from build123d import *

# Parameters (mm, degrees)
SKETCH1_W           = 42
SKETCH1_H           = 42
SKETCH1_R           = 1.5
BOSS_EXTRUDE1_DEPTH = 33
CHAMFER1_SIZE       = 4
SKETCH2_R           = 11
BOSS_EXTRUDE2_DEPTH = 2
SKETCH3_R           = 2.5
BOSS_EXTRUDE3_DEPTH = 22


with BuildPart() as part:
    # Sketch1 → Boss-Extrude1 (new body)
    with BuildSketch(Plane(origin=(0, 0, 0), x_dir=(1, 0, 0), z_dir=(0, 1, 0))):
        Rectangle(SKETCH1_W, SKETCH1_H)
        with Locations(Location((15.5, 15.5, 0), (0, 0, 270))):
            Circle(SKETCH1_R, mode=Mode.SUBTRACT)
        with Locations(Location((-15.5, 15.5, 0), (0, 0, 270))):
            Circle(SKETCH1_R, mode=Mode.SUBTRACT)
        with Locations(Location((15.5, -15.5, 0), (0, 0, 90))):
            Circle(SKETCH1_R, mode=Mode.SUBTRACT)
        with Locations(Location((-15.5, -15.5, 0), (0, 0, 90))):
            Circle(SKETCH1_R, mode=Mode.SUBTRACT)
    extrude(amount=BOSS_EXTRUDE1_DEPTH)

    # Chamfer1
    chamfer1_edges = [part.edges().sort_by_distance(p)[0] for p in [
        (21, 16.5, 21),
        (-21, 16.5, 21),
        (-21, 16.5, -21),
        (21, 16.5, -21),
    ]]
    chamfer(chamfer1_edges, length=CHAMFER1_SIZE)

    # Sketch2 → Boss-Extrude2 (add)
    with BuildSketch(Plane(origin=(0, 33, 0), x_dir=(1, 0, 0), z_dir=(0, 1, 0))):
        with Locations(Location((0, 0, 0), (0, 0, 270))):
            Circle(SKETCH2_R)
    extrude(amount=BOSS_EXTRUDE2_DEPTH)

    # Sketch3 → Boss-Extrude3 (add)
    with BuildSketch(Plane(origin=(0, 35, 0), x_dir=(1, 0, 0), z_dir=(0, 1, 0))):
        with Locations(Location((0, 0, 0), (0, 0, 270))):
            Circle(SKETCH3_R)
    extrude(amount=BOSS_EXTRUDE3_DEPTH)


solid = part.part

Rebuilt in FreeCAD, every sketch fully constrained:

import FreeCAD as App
import Part
import Sketcher
from FreeCAD import Vector
Q = App.Units.Quantity


def edges_at(feature, points):
    """Names of the edges that pass closest to the given points."""
    edges = feature.Shape.Edges
    near = lambda p: min(range(len(edges)), key=lambda i: edges[i].distToShape(Part.Vertex(*p))[0])
    return sorted({f"Edge{near(p) + 1}" for p in points})


def add_polygon(sketch, points):
    """Adds a closed chain of lines whose ends are joined by coincident constraints."""
    first, n = sketch.GeometryCount, len(points)
    for a, b in zip(points, points[1:] + points[:1]):
        sketch.addGeometry(Part.LineSegment(App.Vector(*a, 0), App.Vector(*b, 0)), False)
    for i in range(n):
        sketch.addConstraint(Sketcher.Constraint("Coincident", first + i, 2, first + (i + 1) % n, 1))

doc = App.newDocument("Part")
params = doc.addObject("Spreadsheet::Sheet", "Params")
for row, (alias, value) in enumerate([
    ("sketch1_diameter", "3 mm"),
    ("sketch1_width", "42 mm"),
    ("pad1_length", "33 mm"),
    ("chamfer_size", "4 mm"),
    ("sketch2_diameter", "22 mm"),
    ("pad2_length", "2 mm"),
    ("sketch3_diameter", "5 mm"),
    ("pad3_length", "22 mm"),
], start=1):
    params.set(f"A{row}", alias)
    params.set(f"B{row}", "=" + value)
    params.setAlias(f"B{row}", alias)

body = doc.addObject("PartDesign::Body", "Body")

# Sketch on XZ plane
sketch1 = doc.addObject("Sketcher::SketchObject", "Sketch")
body.addObject(sketch1)
sketch1.AttachmentSupport = (doc.XZ_Plane, [""])
sketch1.MapMode = "FlatFace"
add_polygon(sketch1, [(-21, -21), (-21, 21), (21, 21), (21, -21)])  # lines 0-3
sketch1.addGeometry(Part.Circle(Vector(-15.5, 15.5, 0), Vector(0, 0, 1), 1.5), False)  # 4
sketch1.addGeometry(Part.Circle(Vector(15.5, 15.5, 0), Vector(0, 0, 1), 1.5), False)  # 5
sketch1.addGeometry(Part.Circle(Vector(-15.5, -15.5, 0), Vector(0, 0, 1), 1.5), False)  # 6
sketch1.addGeometry(Part.Circle(Vector(15.5, -15.5, 0), Vector(0, 0, 1), 1.5), False)  # 7
sketch1.addConstraint(Sketcher.Constraint("Vertical", 0))
sketch1.addConstraint(Sketcher.Constraint("Horizontal", 1))
sketch1.addConstraint(Sketcher.Constraint("Vertical", 2))
sketch1.addConstraint(Sketcher.Constraint("Horizontal", 3))
sketch1.addConstraint(Sketcher.Constraint("Equal", 4, 5))
sketch1.addConstraint(Sketcher.Constraint("Equal", 5, 6))
sketch1.addConstraint(Sketcher.Constraint("Equal", 6, 7))
sketch1.addConstraint(Sketcher.Constraint("Symmetric", 5, 3, 6, 3, -1, 1))
sketch1.addConstraint(Sketcher.Constraint("Symmetric", 4, 3, 7, 3, -1, 1))
sketch1.addConstraint(Sketcher.Constraint("Symmetric", 0, 2, 2, 2, -1, 1))
sketch1.addConstraint(Sketcher.Constraint("Symmetric", 4, 3, 5, 3, -2))
sketch1.addConstraint(Sketcher.Constraint("Equal", 3, 0))
sketch1.addConstraint(Sketcher.Constraint("Diameter", 4, Q("3 mm")))
sketch1.addConstraint(Sketcher.Constraint("DistanceX", 1, 1, 1, 2, Q("42 mm")))
sketch1.addConstraint(Sketcher.Constraint("DistanceX", 4, 3, 5, 3, Q("31 mm")))
sketch1.addConstraint(Sketcher.Constraint("DistanceY", 6, 3, 4, 3, Q("31 mm")))
sketch1.setExpression("Constraints[16]", "Params.sketch1_diameter")
sketch1.setExpression("Constraints[17]", "Params.sketch1_width")
pad1 = doc.addObject("PartDesign::Pad", "Pad")
body.addObject(pad1)
pad1.Profile = sketch1
pad1.setExpression("Length", "Params.pad1_length")
pad1.Reversed = True
doc.recompute()

chamfer = doc.addObject("PartDesign::Chamfer", "Chamfer")
body.addObject(chamfer)
chamfer.Base = (pad1, edges_at(pad1, [
    (21, 16.5, 21),
    (-21, 16.5, 21),
    (-21, 16.5, -21),
    (21, 16.5, -21),
]))
chamfer.setExpression("Size", "Params.chamfer_size")

# Sketch on XZ plane
sketch2 = doc.addObject("Sketcher::SketchObject", "Sketch001")
body.addObject(sketch2)
sketch2.AttachmentSupport = (doc.XZ_Plane, [""])
sketch2.MapMode = "FlatFace"
sketch2.AttachmentOffset = App.Placement(Vector(0, 0, -33), App.Rotation())
sketch2.addGeometry(Part.Circle(Vector(0, 0, 0), Vector(0, 0, 1), 11), False)
sketch2.addConstraint(Sketcher.Constraint("Coincident", 0, 3, -1, 1))
sketch2.addConstraint(Sketcher.Constraint("Diameter", 0, Q("22 mm")))
sketch2.setExpression("Constraints[1]", "Params.sketch2_diameter")
pad2 = doc.addObject("PartDesign::Pad", "Pad001")
body.addObject(pad2)
pad2.Profile = sketch2
pad2.setExpression("Length", "Params.pad2_length")
pad2.Reversed = True

# Sketch on XZ plane
sketch3 = doc.addObject("Sketcher::SketchObject", "Sketch002")
body.addObject(sketch3)
sketch3.AttachmentSupport = (doc.XZ_Plane, [""])
sketch3.MapMode = "FlatFace"
sketch3.AttachmentOffset = App.Placement(Vector(0, 0, -35), App.Rotation())
sketch3.addGeometry(Part.Circle(Vector(0, 0, 0), Vector(0, 0, 1), 2.5), False)
sketch3.addConstraint(Sketcher.Constraint("Coincident", 0, 3, -1, 1))
sketch3.addConstraint(Sketcher.Constraint("Diameter", 0, Q("5 mm")))
sketch3.setExpression("Constraints[1]", "Params.sketch3_diameter")
pad3 = doc.addObject("PartDesign::Pad", "Pad002")
body.addObject(pad3)
pad3.Profile = sketch3
pad3.setExpression("Length", "Params.pad3_length")
pad3.Reversed = True

doc.recompute()
